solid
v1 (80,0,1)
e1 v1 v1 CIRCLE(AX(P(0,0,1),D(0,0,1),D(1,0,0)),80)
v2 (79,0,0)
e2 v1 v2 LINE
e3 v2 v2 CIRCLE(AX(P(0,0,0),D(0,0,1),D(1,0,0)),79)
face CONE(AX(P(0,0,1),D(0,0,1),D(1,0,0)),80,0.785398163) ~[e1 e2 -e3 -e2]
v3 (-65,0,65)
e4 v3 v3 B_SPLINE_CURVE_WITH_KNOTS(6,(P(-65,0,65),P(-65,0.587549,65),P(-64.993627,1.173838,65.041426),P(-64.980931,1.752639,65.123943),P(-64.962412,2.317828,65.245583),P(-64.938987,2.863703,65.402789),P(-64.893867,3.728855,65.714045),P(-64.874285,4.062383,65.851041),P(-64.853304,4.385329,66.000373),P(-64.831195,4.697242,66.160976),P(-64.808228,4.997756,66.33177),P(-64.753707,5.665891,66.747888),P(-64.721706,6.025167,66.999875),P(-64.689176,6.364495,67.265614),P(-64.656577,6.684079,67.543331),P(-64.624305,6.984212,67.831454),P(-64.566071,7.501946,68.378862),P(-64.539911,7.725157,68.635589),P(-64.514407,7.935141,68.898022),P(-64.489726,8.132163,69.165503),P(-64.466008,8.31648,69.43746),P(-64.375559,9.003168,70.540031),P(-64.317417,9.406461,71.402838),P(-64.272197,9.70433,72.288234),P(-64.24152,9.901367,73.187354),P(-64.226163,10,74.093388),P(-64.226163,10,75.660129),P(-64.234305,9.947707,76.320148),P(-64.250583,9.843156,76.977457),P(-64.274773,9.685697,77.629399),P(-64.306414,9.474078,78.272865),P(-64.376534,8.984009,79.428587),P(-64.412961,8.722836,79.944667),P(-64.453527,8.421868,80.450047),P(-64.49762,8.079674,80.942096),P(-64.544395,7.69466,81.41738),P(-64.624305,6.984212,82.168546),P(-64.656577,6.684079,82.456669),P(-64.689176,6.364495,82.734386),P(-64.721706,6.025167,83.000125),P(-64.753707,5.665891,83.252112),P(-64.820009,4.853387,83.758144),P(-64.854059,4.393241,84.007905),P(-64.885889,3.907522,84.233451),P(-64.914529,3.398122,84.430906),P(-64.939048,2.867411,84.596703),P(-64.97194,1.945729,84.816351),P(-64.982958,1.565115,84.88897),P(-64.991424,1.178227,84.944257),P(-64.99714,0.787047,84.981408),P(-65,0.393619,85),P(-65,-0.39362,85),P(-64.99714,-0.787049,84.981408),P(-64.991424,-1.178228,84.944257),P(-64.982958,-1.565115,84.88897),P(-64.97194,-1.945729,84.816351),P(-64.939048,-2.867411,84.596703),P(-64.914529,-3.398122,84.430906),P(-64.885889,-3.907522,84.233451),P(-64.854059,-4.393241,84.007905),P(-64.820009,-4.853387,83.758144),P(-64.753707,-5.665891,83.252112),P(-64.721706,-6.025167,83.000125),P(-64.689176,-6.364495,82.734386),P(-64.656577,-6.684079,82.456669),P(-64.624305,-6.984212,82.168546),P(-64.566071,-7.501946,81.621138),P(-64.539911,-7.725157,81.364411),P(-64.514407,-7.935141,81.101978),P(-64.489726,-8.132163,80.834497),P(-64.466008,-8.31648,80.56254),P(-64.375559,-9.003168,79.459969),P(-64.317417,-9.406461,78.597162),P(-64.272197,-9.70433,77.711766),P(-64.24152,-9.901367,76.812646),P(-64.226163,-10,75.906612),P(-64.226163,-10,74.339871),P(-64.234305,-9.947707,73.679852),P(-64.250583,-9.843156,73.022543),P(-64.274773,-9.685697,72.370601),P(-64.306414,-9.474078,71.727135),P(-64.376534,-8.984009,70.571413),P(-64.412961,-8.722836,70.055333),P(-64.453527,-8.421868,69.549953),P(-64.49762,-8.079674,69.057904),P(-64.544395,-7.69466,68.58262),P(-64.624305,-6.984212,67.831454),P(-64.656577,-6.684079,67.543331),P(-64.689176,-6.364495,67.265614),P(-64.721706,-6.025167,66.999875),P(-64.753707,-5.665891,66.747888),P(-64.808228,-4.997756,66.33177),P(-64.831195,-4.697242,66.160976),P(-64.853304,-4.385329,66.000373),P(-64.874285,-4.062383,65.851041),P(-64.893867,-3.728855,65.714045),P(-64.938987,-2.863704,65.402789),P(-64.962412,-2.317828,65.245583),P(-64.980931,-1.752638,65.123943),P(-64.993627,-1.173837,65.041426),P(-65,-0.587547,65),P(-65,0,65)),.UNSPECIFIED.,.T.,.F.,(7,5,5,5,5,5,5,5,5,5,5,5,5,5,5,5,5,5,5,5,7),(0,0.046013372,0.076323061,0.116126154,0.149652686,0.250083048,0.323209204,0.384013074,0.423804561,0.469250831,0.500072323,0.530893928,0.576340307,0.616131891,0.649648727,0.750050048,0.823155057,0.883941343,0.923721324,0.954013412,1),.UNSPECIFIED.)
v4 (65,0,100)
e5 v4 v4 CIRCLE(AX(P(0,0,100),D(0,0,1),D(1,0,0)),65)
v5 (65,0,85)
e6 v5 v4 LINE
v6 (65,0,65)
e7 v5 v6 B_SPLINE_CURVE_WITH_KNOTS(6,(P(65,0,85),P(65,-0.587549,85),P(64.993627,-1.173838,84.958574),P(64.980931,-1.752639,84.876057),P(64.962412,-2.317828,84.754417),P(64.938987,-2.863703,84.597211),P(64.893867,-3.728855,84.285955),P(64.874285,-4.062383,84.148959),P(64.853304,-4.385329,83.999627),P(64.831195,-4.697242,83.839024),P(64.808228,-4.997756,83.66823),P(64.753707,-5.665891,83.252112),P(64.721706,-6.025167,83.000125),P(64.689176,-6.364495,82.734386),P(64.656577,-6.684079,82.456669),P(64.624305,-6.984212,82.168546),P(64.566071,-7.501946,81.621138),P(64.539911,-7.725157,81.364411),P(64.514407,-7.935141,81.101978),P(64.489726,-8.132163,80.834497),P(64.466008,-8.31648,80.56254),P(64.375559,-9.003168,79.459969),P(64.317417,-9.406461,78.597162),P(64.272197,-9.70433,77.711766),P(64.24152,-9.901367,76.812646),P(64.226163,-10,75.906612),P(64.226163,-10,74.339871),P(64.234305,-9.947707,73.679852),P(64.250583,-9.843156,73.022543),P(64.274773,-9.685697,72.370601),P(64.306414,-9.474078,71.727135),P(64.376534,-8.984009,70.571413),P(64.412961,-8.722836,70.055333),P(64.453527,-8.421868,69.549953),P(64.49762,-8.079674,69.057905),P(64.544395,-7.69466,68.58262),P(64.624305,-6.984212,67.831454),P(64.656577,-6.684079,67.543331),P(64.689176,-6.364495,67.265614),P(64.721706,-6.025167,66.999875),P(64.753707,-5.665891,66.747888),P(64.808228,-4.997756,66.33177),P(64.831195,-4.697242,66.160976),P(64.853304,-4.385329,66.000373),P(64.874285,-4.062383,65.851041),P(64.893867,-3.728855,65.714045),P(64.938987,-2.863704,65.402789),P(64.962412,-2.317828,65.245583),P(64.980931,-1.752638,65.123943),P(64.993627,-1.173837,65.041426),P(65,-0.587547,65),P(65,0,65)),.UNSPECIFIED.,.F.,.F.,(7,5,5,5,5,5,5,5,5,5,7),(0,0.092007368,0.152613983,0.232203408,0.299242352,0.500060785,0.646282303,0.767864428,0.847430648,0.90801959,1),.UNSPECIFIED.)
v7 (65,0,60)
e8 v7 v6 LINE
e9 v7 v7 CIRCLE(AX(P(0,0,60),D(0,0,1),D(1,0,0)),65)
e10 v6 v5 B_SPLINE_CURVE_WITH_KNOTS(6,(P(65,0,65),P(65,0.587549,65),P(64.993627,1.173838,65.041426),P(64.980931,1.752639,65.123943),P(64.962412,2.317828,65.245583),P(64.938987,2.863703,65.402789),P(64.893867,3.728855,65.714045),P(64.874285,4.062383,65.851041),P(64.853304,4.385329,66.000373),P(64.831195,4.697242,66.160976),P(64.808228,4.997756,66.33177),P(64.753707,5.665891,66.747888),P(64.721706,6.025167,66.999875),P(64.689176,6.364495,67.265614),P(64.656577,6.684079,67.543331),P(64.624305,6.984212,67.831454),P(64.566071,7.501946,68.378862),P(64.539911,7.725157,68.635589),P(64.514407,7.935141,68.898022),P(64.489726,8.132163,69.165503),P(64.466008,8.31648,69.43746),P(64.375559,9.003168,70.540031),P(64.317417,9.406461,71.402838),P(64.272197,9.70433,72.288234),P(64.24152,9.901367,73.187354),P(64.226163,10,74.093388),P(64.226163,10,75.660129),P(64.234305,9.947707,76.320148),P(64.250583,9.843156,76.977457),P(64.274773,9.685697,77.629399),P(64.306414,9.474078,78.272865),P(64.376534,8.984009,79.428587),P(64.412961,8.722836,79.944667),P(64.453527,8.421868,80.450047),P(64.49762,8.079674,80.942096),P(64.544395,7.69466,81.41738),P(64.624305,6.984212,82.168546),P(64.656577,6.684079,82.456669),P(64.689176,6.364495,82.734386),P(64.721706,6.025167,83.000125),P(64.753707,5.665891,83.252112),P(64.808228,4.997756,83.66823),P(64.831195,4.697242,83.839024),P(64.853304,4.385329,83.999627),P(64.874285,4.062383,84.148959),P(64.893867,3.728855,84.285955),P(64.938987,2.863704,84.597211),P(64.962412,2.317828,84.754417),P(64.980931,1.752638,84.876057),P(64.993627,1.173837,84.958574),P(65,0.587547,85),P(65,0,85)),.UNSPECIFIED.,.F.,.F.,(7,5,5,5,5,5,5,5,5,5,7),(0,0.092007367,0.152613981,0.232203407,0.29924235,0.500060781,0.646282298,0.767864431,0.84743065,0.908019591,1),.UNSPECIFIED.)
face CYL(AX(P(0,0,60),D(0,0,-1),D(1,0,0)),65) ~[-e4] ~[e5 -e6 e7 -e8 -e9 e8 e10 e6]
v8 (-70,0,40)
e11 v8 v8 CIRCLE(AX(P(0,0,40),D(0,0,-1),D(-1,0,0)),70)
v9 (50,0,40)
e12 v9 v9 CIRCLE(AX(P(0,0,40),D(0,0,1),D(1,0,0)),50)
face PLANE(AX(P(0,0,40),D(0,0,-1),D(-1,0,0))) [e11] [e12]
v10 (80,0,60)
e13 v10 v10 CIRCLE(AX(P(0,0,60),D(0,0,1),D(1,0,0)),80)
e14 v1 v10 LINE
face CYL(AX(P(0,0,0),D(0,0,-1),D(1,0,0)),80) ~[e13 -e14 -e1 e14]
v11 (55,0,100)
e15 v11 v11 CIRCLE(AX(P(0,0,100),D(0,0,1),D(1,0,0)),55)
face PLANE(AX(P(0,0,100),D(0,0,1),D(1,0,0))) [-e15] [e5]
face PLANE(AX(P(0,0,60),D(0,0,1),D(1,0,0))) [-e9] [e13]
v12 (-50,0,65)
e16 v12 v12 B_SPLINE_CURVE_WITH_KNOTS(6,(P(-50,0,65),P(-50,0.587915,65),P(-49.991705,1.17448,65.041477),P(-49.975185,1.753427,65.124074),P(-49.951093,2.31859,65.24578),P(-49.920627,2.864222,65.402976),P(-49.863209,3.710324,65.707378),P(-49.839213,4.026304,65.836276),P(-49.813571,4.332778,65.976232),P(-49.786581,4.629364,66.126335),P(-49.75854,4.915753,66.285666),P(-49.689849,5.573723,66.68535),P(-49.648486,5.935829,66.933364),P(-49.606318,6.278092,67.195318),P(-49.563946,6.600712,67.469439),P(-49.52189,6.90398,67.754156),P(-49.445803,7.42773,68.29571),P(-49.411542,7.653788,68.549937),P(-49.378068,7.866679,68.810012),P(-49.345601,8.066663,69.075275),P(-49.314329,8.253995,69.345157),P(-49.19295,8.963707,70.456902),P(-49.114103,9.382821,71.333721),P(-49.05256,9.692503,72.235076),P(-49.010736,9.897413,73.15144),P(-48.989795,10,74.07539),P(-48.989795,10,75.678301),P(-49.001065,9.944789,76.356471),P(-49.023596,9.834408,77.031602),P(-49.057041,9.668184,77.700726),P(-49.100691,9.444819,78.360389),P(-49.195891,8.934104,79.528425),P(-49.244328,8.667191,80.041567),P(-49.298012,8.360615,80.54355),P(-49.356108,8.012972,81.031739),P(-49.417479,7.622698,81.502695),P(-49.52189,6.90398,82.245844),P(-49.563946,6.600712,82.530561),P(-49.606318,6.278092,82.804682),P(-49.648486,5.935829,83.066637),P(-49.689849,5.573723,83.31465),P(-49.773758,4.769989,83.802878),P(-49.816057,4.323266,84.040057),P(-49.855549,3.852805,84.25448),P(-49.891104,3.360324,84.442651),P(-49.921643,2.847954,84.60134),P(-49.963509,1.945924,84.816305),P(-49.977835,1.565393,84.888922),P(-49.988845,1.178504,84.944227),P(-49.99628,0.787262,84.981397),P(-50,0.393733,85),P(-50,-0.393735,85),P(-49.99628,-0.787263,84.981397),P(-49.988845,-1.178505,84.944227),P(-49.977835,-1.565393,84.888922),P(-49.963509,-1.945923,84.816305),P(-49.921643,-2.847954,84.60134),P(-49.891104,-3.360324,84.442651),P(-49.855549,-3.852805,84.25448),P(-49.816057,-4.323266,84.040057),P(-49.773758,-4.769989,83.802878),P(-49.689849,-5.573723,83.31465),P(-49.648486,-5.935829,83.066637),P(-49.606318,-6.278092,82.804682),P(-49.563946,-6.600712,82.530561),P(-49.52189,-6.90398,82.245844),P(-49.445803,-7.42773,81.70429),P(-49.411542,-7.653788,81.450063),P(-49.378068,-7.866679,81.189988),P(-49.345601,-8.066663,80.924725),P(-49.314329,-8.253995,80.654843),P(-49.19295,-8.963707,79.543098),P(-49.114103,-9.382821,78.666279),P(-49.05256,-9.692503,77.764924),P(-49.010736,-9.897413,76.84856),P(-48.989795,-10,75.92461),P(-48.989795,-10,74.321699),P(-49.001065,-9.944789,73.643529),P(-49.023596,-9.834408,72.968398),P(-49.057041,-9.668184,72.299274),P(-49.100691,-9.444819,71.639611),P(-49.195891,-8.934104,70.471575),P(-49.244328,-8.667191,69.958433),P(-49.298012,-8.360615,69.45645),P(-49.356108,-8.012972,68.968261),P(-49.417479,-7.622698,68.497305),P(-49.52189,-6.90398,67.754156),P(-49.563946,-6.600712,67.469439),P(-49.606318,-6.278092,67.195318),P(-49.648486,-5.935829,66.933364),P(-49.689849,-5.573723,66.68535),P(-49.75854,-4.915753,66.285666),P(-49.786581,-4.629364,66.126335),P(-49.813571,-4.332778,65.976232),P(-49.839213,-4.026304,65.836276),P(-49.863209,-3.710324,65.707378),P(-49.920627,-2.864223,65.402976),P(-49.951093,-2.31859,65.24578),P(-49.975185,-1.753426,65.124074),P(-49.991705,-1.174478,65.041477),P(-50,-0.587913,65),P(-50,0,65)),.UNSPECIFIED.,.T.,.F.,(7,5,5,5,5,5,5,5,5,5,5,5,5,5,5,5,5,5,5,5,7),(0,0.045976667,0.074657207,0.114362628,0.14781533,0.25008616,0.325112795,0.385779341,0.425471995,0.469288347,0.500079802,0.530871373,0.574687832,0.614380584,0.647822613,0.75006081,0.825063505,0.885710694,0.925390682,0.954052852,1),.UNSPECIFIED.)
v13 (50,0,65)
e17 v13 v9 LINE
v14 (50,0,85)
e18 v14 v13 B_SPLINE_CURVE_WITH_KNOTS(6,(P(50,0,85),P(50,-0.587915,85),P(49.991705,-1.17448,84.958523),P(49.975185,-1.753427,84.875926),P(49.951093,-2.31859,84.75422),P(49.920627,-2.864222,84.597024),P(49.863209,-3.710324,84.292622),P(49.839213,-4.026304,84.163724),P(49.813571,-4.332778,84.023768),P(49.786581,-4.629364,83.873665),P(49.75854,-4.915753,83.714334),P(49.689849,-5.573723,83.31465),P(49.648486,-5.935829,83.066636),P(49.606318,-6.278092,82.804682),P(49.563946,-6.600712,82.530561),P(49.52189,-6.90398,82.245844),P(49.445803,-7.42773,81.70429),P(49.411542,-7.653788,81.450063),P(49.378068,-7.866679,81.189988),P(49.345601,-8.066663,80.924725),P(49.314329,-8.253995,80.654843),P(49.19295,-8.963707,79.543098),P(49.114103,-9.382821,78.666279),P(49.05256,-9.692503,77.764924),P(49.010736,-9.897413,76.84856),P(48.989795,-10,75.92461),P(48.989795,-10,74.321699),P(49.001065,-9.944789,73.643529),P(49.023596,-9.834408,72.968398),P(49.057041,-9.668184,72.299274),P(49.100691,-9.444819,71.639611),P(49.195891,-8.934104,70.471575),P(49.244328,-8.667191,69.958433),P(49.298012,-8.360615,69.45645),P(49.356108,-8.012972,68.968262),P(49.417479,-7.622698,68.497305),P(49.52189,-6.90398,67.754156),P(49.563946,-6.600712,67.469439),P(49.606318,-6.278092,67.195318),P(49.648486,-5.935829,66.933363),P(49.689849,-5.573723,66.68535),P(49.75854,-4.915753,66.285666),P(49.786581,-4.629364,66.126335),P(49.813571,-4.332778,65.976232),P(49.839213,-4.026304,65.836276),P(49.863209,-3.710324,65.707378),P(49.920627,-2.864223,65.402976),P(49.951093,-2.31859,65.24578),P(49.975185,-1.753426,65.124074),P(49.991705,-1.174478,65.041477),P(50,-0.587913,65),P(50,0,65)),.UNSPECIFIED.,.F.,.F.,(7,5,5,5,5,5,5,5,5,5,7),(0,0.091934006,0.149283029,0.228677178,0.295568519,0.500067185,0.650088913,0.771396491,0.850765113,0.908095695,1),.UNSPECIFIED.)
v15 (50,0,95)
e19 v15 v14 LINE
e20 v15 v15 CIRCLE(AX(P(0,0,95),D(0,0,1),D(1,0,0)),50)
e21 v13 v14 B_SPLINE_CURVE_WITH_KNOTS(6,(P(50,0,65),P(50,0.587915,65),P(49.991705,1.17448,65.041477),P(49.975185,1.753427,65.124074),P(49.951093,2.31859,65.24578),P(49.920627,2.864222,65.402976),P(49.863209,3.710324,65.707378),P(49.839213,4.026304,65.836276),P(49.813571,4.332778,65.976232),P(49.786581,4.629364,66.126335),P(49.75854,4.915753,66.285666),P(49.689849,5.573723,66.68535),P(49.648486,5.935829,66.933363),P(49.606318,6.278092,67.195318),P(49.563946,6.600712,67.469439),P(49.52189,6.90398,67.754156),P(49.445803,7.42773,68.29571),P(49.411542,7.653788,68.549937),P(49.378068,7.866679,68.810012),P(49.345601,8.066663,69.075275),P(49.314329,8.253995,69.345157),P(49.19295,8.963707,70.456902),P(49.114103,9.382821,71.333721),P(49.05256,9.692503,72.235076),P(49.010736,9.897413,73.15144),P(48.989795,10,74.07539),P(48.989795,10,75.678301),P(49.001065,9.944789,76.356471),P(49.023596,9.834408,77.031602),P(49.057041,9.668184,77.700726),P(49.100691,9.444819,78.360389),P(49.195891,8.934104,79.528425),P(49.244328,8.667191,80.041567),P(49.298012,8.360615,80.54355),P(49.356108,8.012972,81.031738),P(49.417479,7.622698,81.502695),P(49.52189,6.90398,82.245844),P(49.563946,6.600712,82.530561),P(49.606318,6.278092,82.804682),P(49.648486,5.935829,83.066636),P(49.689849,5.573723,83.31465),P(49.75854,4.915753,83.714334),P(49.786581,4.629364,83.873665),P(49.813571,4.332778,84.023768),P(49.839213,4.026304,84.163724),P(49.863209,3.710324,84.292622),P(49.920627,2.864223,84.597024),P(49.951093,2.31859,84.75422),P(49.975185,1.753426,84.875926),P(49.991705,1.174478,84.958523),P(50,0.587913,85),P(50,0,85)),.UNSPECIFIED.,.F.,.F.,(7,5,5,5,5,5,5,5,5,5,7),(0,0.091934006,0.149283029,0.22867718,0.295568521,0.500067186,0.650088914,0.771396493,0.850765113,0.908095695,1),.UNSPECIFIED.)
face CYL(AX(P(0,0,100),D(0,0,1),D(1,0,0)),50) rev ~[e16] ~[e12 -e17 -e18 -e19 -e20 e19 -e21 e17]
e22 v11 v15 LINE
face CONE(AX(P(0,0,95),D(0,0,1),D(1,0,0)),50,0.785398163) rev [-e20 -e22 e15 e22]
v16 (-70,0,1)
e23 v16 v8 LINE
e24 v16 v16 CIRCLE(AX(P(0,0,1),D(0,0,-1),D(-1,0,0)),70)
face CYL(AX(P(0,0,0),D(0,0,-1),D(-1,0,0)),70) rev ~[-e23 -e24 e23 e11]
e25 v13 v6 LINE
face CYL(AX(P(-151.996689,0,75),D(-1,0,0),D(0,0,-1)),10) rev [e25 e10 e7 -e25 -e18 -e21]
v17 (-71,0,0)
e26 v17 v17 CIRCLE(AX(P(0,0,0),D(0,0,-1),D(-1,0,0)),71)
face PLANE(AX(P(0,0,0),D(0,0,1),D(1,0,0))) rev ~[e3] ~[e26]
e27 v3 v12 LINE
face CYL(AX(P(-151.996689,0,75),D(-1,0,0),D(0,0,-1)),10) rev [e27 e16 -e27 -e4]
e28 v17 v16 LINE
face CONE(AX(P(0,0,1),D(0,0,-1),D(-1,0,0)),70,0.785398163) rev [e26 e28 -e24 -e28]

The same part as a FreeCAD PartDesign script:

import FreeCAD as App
import Part
import Sketcher
Q = App.Units.Quantity


def edges_at(feature, points):
    """Names of the edges that pass closest to the given points."""
    edges = feature.Shape.Edges
    near = lambda p: min(range(len(edges)), key=lambda i: edges[i].distToShape(Part.Vertex(*p))[0])
    return sorted({f"Edge{near(p) + 1}" for p in points})

doc = App.newDocument("Part")
body = doc.addObject("PartDesign::Body", "Body")

# Sketch on XY plane
sketch1 = doc.addObject("Sketcher::SketchObject", "Sketch")
body.addObject(sketch1)
sketch1.AttachmentSupport = (doc.XY_Plane, [""])
sketch1.MapMode = "FlatFace"
sketch1.addGeometry(Part.Circle(App.Vector(0, 0, 0), App.Vector(0, 0, 1), 80), False)
sketch1.addConstraint(Sketcher.Constraint("Coincident", 0, 3, -1, 1))
sketch1.addConstraint(Sketcher.Constraint("Diameter", 0, Q("160 mm")))
pad1 = doc.addObject("PartDesign::Pad", "Pad")
body.addObject(pad1)
pad1.Profile = sketch1
pad1.Length = 60

# Sketch on XY plane
sketch2 = doc.addObject("Sketcher::SketchObject", "Sketch001")
body.addObject(sketch2)
sketch2.AttachmentSupport = (doc.XY_Plane, [""])
sketch2.MapMode = "FlatFace"
sketch2.AttachmentOffset = App.Placement(App.Vector(0, 0, 60), App.Rotation())
sketch2.addGeometry(Part.Circle(App.Vector(0, 0, 0), App.Vector(0, 0, 1), 65), False)
sketch2.addConstraint(Sketcher.Constraint("Coincident", 0, 3, -1, 1))
sketch2.addConstraint(Sketcher.Constraint("Diameter", 0, Q("130 mm")))
pad2 = doc.addObject("PartDesign::Pad", "Pad001")
body.addObject(pad2)
pad2.Profile = sketch2
pad2.Length = 40

# Sketch on XY plane
sketch3 = doc.addObject("Sketcher::SketchObject", "Sketch002")
body.addObject(sketch3)
sketch3.AttachmentSupport = (doc.XY_Plane, [""])
sketch3.MapMode = "FlatFace"
sketch3.addGeometry(Part.Circle(App.Vector(0, 0, 0), App.Vector(0, 0, 1), 70), False)
sketch3.addConstraint(Sketcher.Constraint("Coincident", 0, 3, -1, 1))
sketch3.addConstraint(Sketcher.Constraint("Diameter", 0, Q("140 mm")))
pocket1 = doc.addObject("PartDesign::Pocket", "Pocket")
body.addObject(pocket1)
pocket1.Profile = sketch3
pocket1.Length = 40
pocket1.Reversed = True

# Sketch on XY plane
sketch4 = doc.addObject("Sketcher::SketchObject", "Sketch003")
body.addObject(sketch4)
sketch4.AttachmentSupport = (doc.XY_Plane, [""])
sketch4.MapMode = "FlatFace"
sketch4.AttachmentOffset = App.Placement(App.Vector(0, 0, 100), App.Rotation())
sketch4.addGeometry(Part.Circle(App.Vector(0, 0, 0), App.Vector(0, 0, 1), 50), False)
sketch4.addConstraint(Sketcher.Constraint("Coincident", 0, 3, -1, 1))
sketch4.addConstraint(Sketcher.Constraint("Diameter", 0, Q("100 mm")))
pocket2 = doc.addObject("PartDesign::Pocket", "Pocket001")
body.addObject(pocket2)
pocket2.Profile = sketch4
pocket2.Type = "ThroughAll"
doc.recompute()

chamfer = doc.addObject("PartDesign::Chamfer", "Chamfer")
body.addObject(chamfer)
chamfer.Base = (pocket2, edges_at(pocket2, [(70, 0, 0), (-80, 0, 0)]))
chamfer.Size = 1

# Sketch on YZ plane
sketch5 = doc.addObject("Sketcher::SketchObject", "Sketch004")
body.addObject(sketch5)
sketch5.AttachmentSupport = (doc.YZ_Plane, [""])
sketch5.MapMode = "FlatFace"
sketch5.addGeometry(Part.Circle(App.Vector(0, 75, 0), App.Vector(0, 0, 1), 10), False)
sketch5.addConstraint(Sketcher.Constraint("PointOnObject", 0, 3, -2))
sketch5.addConstraint(Sketcher.Constraint("Diameter", 0, Q("20 mm")))
sketch5.addConstraint(Sketcher.Constraint("DistanceY", -1, 1, 0, 3, Q("75 mm")))
pocket3 = doc.addObject("PartDesign::Pocket", "Pocket002")
body.addObject(pocket3)
pocket3.Profile = sketch5
pocket3.Type = "ThroughAll"
pocket3.Midplane = True
doc.recompute()

chamfer2 = doc.addObject("PartDesign::Chamfer", "Chamfer001")
body.addObject(chamfer2)
chamfer2.Base = (pocket3, edges_at(pocket3, [(-50, 0, 100)]))
chamfer2.Size = 5

doc.recompute()
